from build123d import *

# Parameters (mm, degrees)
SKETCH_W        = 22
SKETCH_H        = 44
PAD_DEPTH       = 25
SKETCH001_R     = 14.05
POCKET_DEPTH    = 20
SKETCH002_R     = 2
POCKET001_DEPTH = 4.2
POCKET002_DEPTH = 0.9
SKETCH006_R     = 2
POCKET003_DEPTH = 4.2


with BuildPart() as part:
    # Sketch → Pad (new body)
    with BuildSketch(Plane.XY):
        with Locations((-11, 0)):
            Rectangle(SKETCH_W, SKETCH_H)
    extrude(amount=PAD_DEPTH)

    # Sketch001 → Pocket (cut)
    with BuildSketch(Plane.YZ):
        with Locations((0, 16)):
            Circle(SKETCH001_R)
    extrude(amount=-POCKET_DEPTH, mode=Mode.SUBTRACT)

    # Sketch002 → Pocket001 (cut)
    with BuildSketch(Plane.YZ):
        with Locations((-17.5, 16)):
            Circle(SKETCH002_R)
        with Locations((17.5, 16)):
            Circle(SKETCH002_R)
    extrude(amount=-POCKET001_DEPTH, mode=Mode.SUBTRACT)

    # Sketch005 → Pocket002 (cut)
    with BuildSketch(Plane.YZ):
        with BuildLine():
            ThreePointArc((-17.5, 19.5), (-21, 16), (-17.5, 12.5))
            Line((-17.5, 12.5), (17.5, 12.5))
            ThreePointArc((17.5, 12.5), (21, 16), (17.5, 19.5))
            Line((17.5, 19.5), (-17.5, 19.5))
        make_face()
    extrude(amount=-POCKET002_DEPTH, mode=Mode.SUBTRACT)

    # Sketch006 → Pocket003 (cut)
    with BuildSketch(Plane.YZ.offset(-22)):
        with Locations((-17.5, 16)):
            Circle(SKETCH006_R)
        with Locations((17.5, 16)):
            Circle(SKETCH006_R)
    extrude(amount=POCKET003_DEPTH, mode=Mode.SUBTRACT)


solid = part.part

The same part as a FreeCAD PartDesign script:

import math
import FreeCAD as App
import Part
import Sketcher
Q = App.Units.Quantity


def add_polygon(sketch, points):
    """Adds a closed chain of lines whose ends are joined by coincident constraints."""
    first, n = sketch.GeometryCount, len(points)
    for a, b in zip(points, points[1:] + points[:1]):
        sketch.addGeometry(Part.LineSegment(App.Vector(*a, 0), App.Vector(*b, 0)), False)
    for i in range(n):
        sketch.addConstraint(Sketcher.Constraint("Coincident", first + i, 2, first + (i + 1) % n, 1))

doc = App.newDocument("Part")
params = doc.addObject("Spreadsheet::Sheet", "Params")
for row, (alias, value) in enumerate([
    ("sketch1_width", "22 mm"),
    ("sketch1_height", "44 mm"),
    ("pad1_length", "25 mm"),
    ("sketch2_diameter", "28.1 mm"),
    ("pocket1_length", "20 mm"),
    ("sketch3_diameter", "4 mm"),
    ("pocket2_length", "4.2 mm"),
    ("sketch4_radius", "3.5 mm"),
    ("sketch4_width", "35 mm"),
    ("pocket3_length", "0.9 mm"),
    ("sketch5_diameter", "4 mm"),
    ("pocket4_length", "4.2 mm"),
], start=1):
    params.set(f"A{row}", alias)
    params.set(f"B{row}", "=" + value)
    params.setAlias(f"B{row}", alias)

body = doc.addObject("PartDesign::Body", "Body")

# Sketch on XY plane
sketch1 = doc.addObject("Sketcher::SketchObject", "Sketch")
body.addObject(sketch1)
sketch1.AttachmentSupport = (doc.XY_Plane, [""])
sketch1.MapMode = "FlatFace"
add_polygon(sketch1, [(-22, 22), (-22, -22), (0, -22), (0, 22)])  # lines 0-3
sketch1.addConstraint(Sketcher.Constraint("Vertical", 0))
sketch1.addConstraint(Sketcher.Constraint("Horizontal", 1))
sketch1.addConstraint(Sketcher.Constraint("Vertical", 2))
sketch1.addConstraint(Sketcher.Constraint("Horizontal", 3))
sketch1.addConstraint(Sketcher.Constraint("Symmetric", 1, 2, 2, 2, -1, 1))
sketch1.addConstraint(Sketcher.Constraint("DistanceX", 1, 1, 1, 2, Q("22 mm")))
sketch1.addConstraint(Sketcher.Constraint("DistanceY", 0, 2, 0, 1, Q("44 mm")))
sketch1.setExpression("Constraints[9]", "Params.sketch1_width")
sketch1.setExpression("Constraints[10]", "Params.sketch1_height")
pad1 = doc.addObject("PartDesign::Pad", "Pad")
body.addObject(pad1)
pad1.Profile = sketch1
pad1.setExpression("Length", "Params.pad1_length")

# Sketch on YZ plane
sketch2 = doc.addObject("Sketcher::SketchObject", "Sketch001")
body.addObject(sketch2)
sketch2.AttachmentSupport = (doc.YZ_Plane, [""])
sketch2.MapMode = "FlatFace"
sketch2.addGeometry(Part.Circle(App.Vector(0, 16, 0), App.Vector(0, 0, 1), 14), False)
sketch2.addConstraint(Sketcher.Constraint("PointOnObject", 0, 3, -2))
sketch2.addConstraint(Sketcher.Constraint("Diameter", 0, Q("28.1 mm")))
sketch2.addConstraint(Sketcher.Constraint("DistanceY", -1, 1, 0, 3, Q("16 mm")))
sketch2.setExpression("Constraints[1]", "Params.sketch2_diameter")
pocket1 = doc.addObject("PartDesign::Pocket", "Pocket")
body.addObject(pocket1)
pocket1.Profile = sketch2
pocket1.setExpression("Length", "Params.pocket1_length")

# Sketch on YZ plane
sketch3 = doc.addObject("Sketcher::SketchObject", "Sketch002")
body.addObject(sketch3)
sketch3.AttachmentSupport = (doc.YZ_Plane, [""])
sketch3.MapMode = "FlatFace"
sketch3.addGeometry(Part.Circle(App.Vector(-17.5, 16, 0), App.Vector(0, 0, 1), 2), False)
sketch3.addGeometry(Part.Circle(App.Vector(17.5, 16, 0), App.Vector(0, 0, 1), 2), False)
sketch3.addConstraint(Sketcher.Constraint("Equal", 0, 1))
sketch3.addConstraint(Sketcher.Constraint("Symmetric", 0, 3, 1, 3, -2))
sketch3.addConstraint(Sketcher.Constraint("Diameter", 0, Q("4 mm")))
sketch3.addConstraint(Sketcher.Constraint("DistanceY", -1, 1, 0, 3, Q("16 mm")))
sketch3.addConstraint(Sketcher.Constraint("DistanceX", 0, 3, 1, 3, Q("35 mm")))
sketch3.setExpression("Constraints[2]", "Params.sketch3_diameter")
pocket2 = doc.addObject("PartDesign::Pocket", "Pocket001")
body.addObject(pocket2)
pocket2.Profile = sketch3
pocket2.setExpression("Length", "Params.pocket2_length")

# Sketch on YZ plane
sketch4 = doc.addObject("Sketcher::SketchObject", "Sketch003")
body.addObject(sketch4)
sketch4.AttachmentSupport = (doc.YZ_Plane, [""])
sketch4.MapMode = "FlatFace"
sketch4.addGeometry(Part.ArcOfCircle(Part.Circle(App.Vector(-17.5, 16, 0), App.Vector(0, 0, 1), 3.5), math.radians(90), math.radians(270)), False)
sketch4.addGeometry(Part.LineSegment(App.Vector(-17.5, 12.5, 0), App.Vector(17.5, 12.5, 0)), False)
sketch4.addGeometry(Part.ArcOfCircle(Part.Circle(App.Vector(17.5, 16, 0), App.Vector(0, 0, 1), 3.5), math.radians(-90), math.radians(90)), False)
sketch4.addGeometry(Part.LineSegment(App.Vector(17.5, 19.5, 0), App.Vector(-17.5, 19.5, 0)), False)
sketch4.addConstraint(Sketcher.Constraint("Tangent", 0, 2, 1, 1))
sketch4.addConstraint(Sketcher.Constraint("Tangent", 1, 2, 2, 1))
sketch4.addConstraint(Sketcher.Constraint("Tangent", 2, 2, 3, 1))
sketch4.addConstraint(Sketcher.Constraint("Tangent", 3, 2, 0, 1))
sketch4.addConstraint(Sketcher.Constraint("Horizontal", 1))
sketch4.addConstraint(Sketcher.Constraint("Horizontal", 3))
sketch4.addConstraint(Sketcher.Constraint("Radius", 0, Q("3.5 mm")))
sketch4.addConstraint(Sketcher.Constraint("DistanceX", 1, 1, 1, 2, Q("35 mm")))
sketch4.addConstraint(Sketcher.Constraint("DistanceY", -1, 1, 0, 3, Q("16 mm")))
sketch4.addConstraint(Sketcher.Constraint("DistanceX", 0, 3, -1, 1, Q("17.5 mm")))
sketch4.setExpression("Constraints[6]", "Params.sketch4_radius")
sketch4.setExpression("Constraints[7]", "Params.sketch4_width")
pocket3 = doc.addObject("PartDesign::Pocket", "Pocket002")
body.addObject(pocket3)
pocket3.Profile = sketch4
pocket3.setExpression("Length", "Params.pocket3_length")

# Sketch on YZ plane
sketch5 = doc.addObject("Sketcher::SketchObject", "Sketch004")
body.addObject(sketch5)
sketch5.AttachmentSupport = (doc.YZ_Plane, [""])
sketch5.MapMode = "FlatFace"
sketch5.AttachmentOffset = App.Placement(App.Vector(0, 0, -22), App.Rotation())
sketch5.addGeometry(Part.Circle(App.Vector(-17.5, 16, 0), App.Vector(0, 0, 1), 2), False)
sketch5.addGeometry(Part.Circle(App.Vector(17.5, 16, 0), App.Vector(0, 0, 1), 2), False)
sketch5.addConstraint(Sketcher.Constraint("Equal", 0, 1))
sketch5.addConstraint(Sketcher.Constraint("Symmetric", 0, 3, 1, 3, -2))
sketch5.addConstraint(Sketcher.Constraint("Diameter", 0, Q("4 mm")))
sketch5.addConstraint(Sketcher.Constraint("DistanceY", -1, 1, 0, 3, Q("16 mm")))
sketch5.addConstraint(Sketcher.Constraint("DistanceX", 0, 3, 1, 3, Q("35 mm")))
sketch5.setExpression("Constraints[2]", "Params.sketch5_diameter")
pocket4 = doc.addObject("PartDesign::Pocket", "Pocket003")
body.addObject(pocket4)
pocket4.Profile = sketch5
pocket4.setExpression("Length", "Params.pocket4_length")
pocket4.Reversed = True

doc.recompute()
